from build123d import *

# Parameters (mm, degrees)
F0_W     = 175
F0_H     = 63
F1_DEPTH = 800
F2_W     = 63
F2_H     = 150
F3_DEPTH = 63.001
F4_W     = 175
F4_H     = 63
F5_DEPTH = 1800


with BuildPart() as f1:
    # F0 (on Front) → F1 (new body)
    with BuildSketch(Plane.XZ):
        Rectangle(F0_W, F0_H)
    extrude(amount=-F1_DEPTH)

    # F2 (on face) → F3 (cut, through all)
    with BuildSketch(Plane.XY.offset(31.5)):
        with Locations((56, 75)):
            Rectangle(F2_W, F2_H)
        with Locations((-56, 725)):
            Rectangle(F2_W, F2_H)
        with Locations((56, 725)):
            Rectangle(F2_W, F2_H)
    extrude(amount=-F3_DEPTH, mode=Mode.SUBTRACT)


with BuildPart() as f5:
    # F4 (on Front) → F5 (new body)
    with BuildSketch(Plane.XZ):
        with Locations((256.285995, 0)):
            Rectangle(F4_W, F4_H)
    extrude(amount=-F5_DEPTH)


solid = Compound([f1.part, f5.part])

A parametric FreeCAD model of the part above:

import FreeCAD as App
import Part
import Sketcher

V = App.Vector
Q = App.Units.Quantity

doc = App.newDocument("Part")
body = doc.addObject("PartDesign::Body", "Body")

# Sketch on XZ plane
sketch1 = body.newObject("Sketcher::SketchObject", "Sketch")
sketch1.AttachmentSupport = (doc.getObject("XZ_Plane"), [""])
sketch1.MapMode = "FlatFace"
sketch1.addGeometry([
    Part.LineSegment(V(-88, 32, 0), V(-88, -32, 0)),
    Part.LineSegment(V(-88, -32, 0), V(88, -32, 0)),
    Part.LineSegment(V(88, -32, 0), V(88, 32, 0)),
    Part.LineSegment(V(88, 32, 0), V(-88, 32, 0)),
], False)
sketch1.addConstraint([
    Sketcher.Constraint("Coincident", 0, 2, 1, 1),
    Sketcher.Constraint("Coincident", 1, 2, 2, 1),
    Sketcher.Constraint("Coincident", 2, 2, 3, 1),
    Sketcher.Constraint("Coincident", 3, 2, 0, 1),
    Sketcher.Constraint("Vertical", 0),
    Sketcher.Constraint("Horizontal", 1),
    Sketcher.Constraint("Vertical", 2),
    Sketcher.Constraint("Horizontal", 3),
    Sketcher.Constraint("Symmetric", 0, 2, 2, 2, -1, 1),
    Sketcher.Constraint("DistanceX", 1, 1, 1, 2, Q("175 mm")),
    Sketcher.Constraint("DistanceY", 0, 2, 0, 1, Q("63 mm")),
])
pad1 = body.newObject("PartDesign::Pad", "Pad")
pad1.Profile = sketch1
pad1.Length = 800
pad1.Reversed = True

# Sketch on XY plane
sketch2 = body.newObject("Sketcher::SketchObject", "Sketch001")
sketch2.AttachmentSupport = (doc.getObject("XY_Plane"), [""])
sketch2.MapMode = "FlatFace"
sketch2.AttachmentOffset = App.Placement(V(0, 0, 31.5), App.Rotation())
sketch2.addGeometry([
    Part.LineSegment(V(24, 150, 0), V(24, 0, 0)),  # 0
    Part.LineSegment(V(24, 0, 0), V(88, 0, 0)),  # 1
    Part.LineSegment(V(88, 0, 0), V(88, 150, 0)),  # 2
    Part.LineSegment(V(88, 150, 0), V(24, 150, 0)),  # 3
    Part.LineSegment(V(-88, 800, 0), V(-88, 650, 0)),  # 4
    Part.LineSegment(V(-88, 650, 0), V(-24, 650, 0)),  # 5
    Part.LineSegment(V(-24, 650, 0), V(-24, 800, 0)),  # 6
    Part.LineSegment(V(-24, 800, 0), V(-88, 800, 0)),  # 7
    Part.LineSegment(V(24, 800, 0), V(24, 650, 0)),  # 8
    Part.LineSegment(V(24, 650, 0), V(88, 650, 0)),  # 9
    Part.LineSegment(V(88, 650, 0), V(88, 800, 0)),  # 10
    Part.LineSegment(V(88, 800, 0), V(24, 800, 0)),  # 11
], False)
sketch2.addConstraint([
    Sketcher.Constraint("Coincident", 0, 2, 1, 1),
    Sketcher.Constraint("Coincident", 1, 2, 2, 1),
    Sketcher.Constraint("Coincident", 2, 2, 3, 1),
    Sketcher.Constraint("Coincident", 3, 2, 0, 1),
    Sketcher.Constraint("Coincident", 4, 2, 5, 1),
    Sketcher.Constraint("Coincident", 5, 2, 6, 1),
    Sketcher.Constraint("Coincident", 6, 2, 7, 1),
    Sketcher.Constraint("Coincident", 7, 2, 4, 1),
    Sketcher.Constraint("Coincident", 8, 2, 9, 1),
    Sketcher.Constraint("Coincident", 9, 2, 10, 1),
    Sketcher.Constraint("Coincident", 10, 2, 11, 1),
    Sketcher.Constraint("Coincident", 11, 2, 8, 1),
    Sketcher.Constraint("Vertical", 0),
    Sketcher.Constraint("Horizontal", 1),
    Sketcher.Constraint("Vertical", 2),
    Sketcher.Constraint("Horizontal", 3),
    Sketcher.Constraint("Vertical", 4),
    Sketcher.Constraint("Horizontal", 5),
    Sketcher.Constraint("Vertical", 6),
    Sketcher.Constraint("Horizontal", 7),
    Sketcher.Constraint("Vertical", 8),
    Sketcher.Constraint("Horizontal", 9),
    Sketcher.Constraint("Vertical", 10),
    Sketcher.Constraint("Horizontal", 11),
    Sketcher.Constraint("Symmetric", 5, 2, 8, 2, -2),
    Sketcher.Constraint("Symmetric", 7, 2, 10, 2, -2),
    Sketcher.Constraint("PointOnObject", 0, 2, -1),
    Sketcher.Constraint("Vertical", 3, 2, 8, 2),
    Sketcher.Constraint("Vertical", 2, 2, 9, 2),
    Sketcher.Constraint("Equal", 2, 4),
    Sketcher.Constraint("DistanceX", 1, 1, 1, 2, Q("63 mm")),
    Sketcher.Constraint("DistanceY", 0, 2, 0, 1, Q("150 mm")),
    Sketcher.Constraint("DistanceY", -1, 1, 4, 2, Q("650 mm")),
    Sketcher.Constraint("DistanceX", 4, 2, 3, 2, Q("112 mm")),
])
pocket1 = body.newObject("PartDesign::Pocket", "Pocket")
pocket1.Profile = sketch2
pocket1.Type = "ThroughAll"
body2 = doc.addObject("PartDesign::Body", "Body001")

# Sketch on XZ plane
sketch3 = body2.newObject("Sketcher::SketchObject", "Sketch002")
sketch3.AttachmentSupport = (doc.getObject("XZ_Plane001"), [""])
sketch3.MapMode = "FlatFace"
sketch3.addGeometry([
    Part.LineSegment(V(169, 32, 0), V(169, -32, 0)),
    Part.LineSegment(V(169, -32, 0), V(344, -32, 0)),
    Part.LineSegment(V(344, -32, 0), V(344, 32, 0)),
    Part.LineSegment(V(344, 32, 0), V(169, 32, 0)),
], False)
sketch3.addConstraint([
    Sketcher.Constraint("Coincident", 0, 2, 1, 1),
    Sketcher.Constraint("Coincident", 1, 2, 2, 1),
    Sketcher.Constraint("Coincident", 2, 2, 3, 1),
    Sketcher.Constraint("Coincident", 3, 2, 0, 1),
    Sketcher.Constraint("Vertical", 0),
    Sketcher.Constraint("Horizontal", 1),
    Sketcher.Constraint("Vertical", 2),
    Sketcher.Constraint("Horizontal", 3),
    Sketcher.Constraint("DistanceX", 1, 1, 1, 2, Q("175 mm")),
    Sketcher.Constraint("DistanceY", 0, 2, 0, 1, Q("63 mm")),
    Sketcher.Constraint("DistanceY", 0, 2, -1, 1, Q("31.5 mm")),
    Sketcher.Constraint("DistanceX", -1, 1, 0, 2, Q("168.785995 mm")),
])
pad2 = body2.newObject("PartDesign::Pad", "Pad001")
pad2.Profile = sketch3
pad2.Length = 1800
pad2.Reversed = True

doc.recompute()
